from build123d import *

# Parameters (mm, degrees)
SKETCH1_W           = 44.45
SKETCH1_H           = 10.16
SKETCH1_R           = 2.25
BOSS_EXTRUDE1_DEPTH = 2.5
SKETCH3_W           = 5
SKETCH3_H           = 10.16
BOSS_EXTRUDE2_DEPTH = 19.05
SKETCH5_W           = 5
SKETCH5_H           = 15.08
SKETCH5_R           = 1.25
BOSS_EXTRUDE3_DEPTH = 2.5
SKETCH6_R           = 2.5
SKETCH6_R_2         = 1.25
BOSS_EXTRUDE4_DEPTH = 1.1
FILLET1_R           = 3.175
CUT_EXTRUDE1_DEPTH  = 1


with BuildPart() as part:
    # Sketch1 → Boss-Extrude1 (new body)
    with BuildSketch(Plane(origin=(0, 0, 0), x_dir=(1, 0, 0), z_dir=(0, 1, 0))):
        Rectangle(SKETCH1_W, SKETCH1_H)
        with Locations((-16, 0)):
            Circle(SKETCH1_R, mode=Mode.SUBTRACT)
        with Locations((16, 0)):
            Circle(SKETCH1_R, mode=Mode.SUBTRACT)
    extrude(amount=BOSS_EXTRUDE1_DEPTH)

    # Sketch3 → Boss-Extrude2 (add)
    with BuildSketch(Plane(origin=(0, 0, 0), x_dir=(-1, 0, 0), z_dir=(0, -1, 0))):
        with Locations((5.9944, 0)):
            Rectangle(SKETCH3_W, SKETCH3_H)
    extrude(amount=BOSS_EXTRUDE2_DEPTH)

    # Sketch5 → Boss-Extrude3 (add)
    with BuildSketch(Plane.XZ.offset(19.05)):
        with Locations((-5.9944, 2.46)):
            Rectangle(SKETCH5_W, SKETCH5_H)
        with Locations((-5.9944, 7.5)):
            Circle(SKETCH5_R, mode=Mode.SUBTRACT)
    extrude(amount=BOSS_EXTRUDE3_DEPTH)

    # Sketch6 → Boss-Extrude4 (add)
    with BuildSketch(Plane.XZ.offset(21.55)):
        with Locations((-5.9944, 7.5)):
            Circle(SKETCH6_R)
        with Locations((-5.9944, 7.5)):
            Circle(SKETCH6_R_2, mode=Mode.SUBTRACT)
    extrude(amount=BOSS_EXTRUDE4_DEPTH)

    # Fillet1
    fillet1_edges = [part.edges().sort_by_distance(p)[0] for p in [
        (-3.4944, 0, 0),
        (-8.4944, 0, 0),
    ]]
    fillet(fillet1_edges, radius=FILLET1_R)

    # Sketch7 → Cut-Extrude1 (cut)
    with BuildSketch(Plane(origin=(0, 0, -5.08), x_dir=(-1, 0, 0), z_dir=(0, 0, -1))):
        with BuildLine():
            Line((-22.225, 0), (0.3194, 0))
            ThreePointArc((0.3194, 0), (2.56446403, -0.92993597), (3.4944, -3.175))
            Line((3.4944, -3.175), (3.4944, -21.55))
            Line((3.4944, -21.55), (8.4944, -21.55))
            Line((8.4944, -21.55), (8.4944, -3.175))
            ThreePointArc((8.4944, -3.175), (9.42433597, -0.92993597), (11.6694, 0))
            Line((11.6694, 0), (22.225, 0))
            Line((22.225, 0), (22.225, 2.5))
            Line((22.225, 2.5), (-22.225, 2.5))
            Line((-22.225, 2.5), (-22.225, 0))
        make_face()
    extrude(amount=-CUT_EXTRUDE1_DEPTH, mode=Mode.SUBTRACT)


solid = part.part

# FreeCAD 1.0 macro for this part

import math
import FreeCAD as App
import Part
import Sketcher
Q = App.Units.Quantity


def edges_at(feature, points):
    """Names of the edges that pass closest to the given points."""
    edges = feature.Shape.Edges
    near = lambda p: min(range(len(edges)), key=lambda i: edges[i].distToShape(Part.Vertex(*p))[0])
    return sorted({f"Edge{near(p) + 1}" for p in points})

doc = App.newDocument("Part")
body = doc.addObject("PartDesign::Body", "Body")

# Sketch on XZ plane
sketch1 = body.newObject("Sketcher::SketchObject", "Sketch")
sketch1.AttachmentSupport = (doc.getObject("XZ_Plane"), [""])
sketch1.MapMode = "FlatFace"
sketch1.addGeometry([
    Part.LineSegment(App.Vector(-22.2, -5.1, 0), App.Vector(-22.2, 5.1, 0)),  # 0
    Part.LineSegment(App.Vector(-22.2, 5.1, 0), App.Vector(22.2, 5.1, 0)),  # 1
    Part.LineSegment(App.Vector(22.2, 5.1, 0), App.Vector(22.2, -5.1, 0)),  # 2
    Part.LineSegment(App.Vector(22.2, -5.1, 0), App.Vector(-22.2, -5.1, 0)),  # 3
    Part.Circle(App.Vector(-16, 0, 0), App.Vector(0, 0, 1), 2.2),  # 4
    Part.Circle(App.Vector(16, 0, 0), App.Vector(0, 0, 1), 2.2),  # 5
], False)
sketch1.addConstraint([
    Sketcher.Constraint("Coincident", 0, 2, 1, 1),
    Sketcher.Constraint("Coincident", 1, 2, 2, 1),
    Sketcher.Constraint("Coincident", 2, 2, 3, 1),
    Sketcher.Constraint("Coincident", 3, 2, 0, 1),
    Sketcher.Constraint("Vertical", 0),
    Sketcher.Constraint("Horizontal", 1),
    Sketcher.Constraint("Vertical", 2),
    Sketcher.Constraint("Horizontal", 3),
    Sketcher.Constraint("Equal", 4, 5),
    Sketcher.Constraint("Symmetric", 4, 3, 5, 3, -1, 1),
    Sketcher.Constraint("Symmetric", 0, 2, 2, 2, -1, 1),
    Sketcher.Constraint("PointOnObject", 4, 3, -1),
    Sketcher.Constraint("Diameter", 4, Q("4.5 mm")),
    Sketcher.Constraint("DistanceX", 4, 3, -1, 1, Q("16 mm")),
    Sketcher.Constraint("DistanceX", 1, 1, 1, 2, Q("44.45 mm")),
    Sketcher.Constraint("DistanceY", 0, 1, 0, 2, Q("10.16 mm")),
])
pad1 = body.newObject("PartDesign::Pad", "Pad")
pad1.Profile = sketch1
pad1.Length = 2.5
pad1.Reversed = True

# Sketch on XZ plane
sketch2 = body.newObject("Sketcher::SketchObject", "Sketch001")
sketch2.AttachmentSupport = (doc.getObject("XZ_Plane"), [""])
sketch2.MapMode = "FlatFace"
sketch2.addGeometry([
    Part.LineSegment(App.Vector(-3, -5, 0), App.Vector(-3, 5, 0)),
    Part.LineSegment(App.Vector(-3, 5, 0), App.Vector(-8, 5, 0)),
    Part.LineSegment(App.Vector(-8, 5, 0), App.Vector(-8, -5, 0)),
    Part.LineSegment(App.Vector(-8, -5, 0), App.Vector(-3, -5, 0)),
], False)
sketch2.addConstraint([
    Sketcher.Constraint("Coincident", 0, 2, 1, 1),
    Sketcher.Constraint("Coincident", 1, 2, 2, 1),
    Sketcher.Constraint("Coincident", 2, 2, 3, 1),
    Sketcher.Constraint("Coincident", 3, 2, 0, 1),
    Sketcher.Constraint("Vertical", 0),
    Sketcher.Constraint("Horizontal", 1),
    Sketcher.Constraint("Vertical", 2),
    Sketcher.Constraint("Horizontal", 3),
    Sketcher.Constraint("DistanceX", 1, 2, 1, 1, Q("5 mm")),
    Sketcher.Constraint("DistanceY", 0, 1, 0, 2, Q("10.16 mm")),
    Sketcher.Constraint("DistanceY", -1, 1, 0, 2, Q("5.08 mm")),
    Sketcher.Constraint("DistanceX", 0, 2, -1, 1, Q("3.4944 mm")),
])
pad2 = body.newObject("PartDesign::Pad", "Pad001")
pad2.Profile = sketch2
pad2.Length = 19.05

# Sketch on XZ plane
sketch3 = body.newObject("Sketcher::SketchObject", "Sketch002")
sketch3.AttachmentSupport = (doc.getObject("XZ_Plane"), [""])
sketch3.MapMode = "FlatFace"
sketch3.AttachmentOffset = App.Placement(App.Vector(0, 0, 19.05), App.Rotation())
sketch3.addGeometry([
    Part.LineSegment(App.Vector(-8.5, 10, 0), App.Vector(-8.5, -5.1, 0)),  # 0
    Part.LineSegment(App.Vector(-8.5, -5.1, 0), App.Vector(-3.5, -5.1, 0)),  # 1
    Part.LineSegment(App.Vector(-3.5, -5.1, 0), App.Vector(-3.5, 10, 0)),  # 2
    Part.LineSegment(App.Vector(-3.5, 10, 0), App.Vector(-8.5, 10, 0)),  # 3
    Part.Circle(App.Vector(-6, 7.5, 0), App.Vector(0, 0, 1), 1.2),  # 4
], False)
sketch3.addConstraint([
    Sketcher.Constraint("Coincident", 0, 2, 1, 1),
    Sketcher.Constraint("Coincident", 1, 2, 2, 1),
    Sketcher.Constraint("Coincident", 2, 2, 3, 1),
    Sketcher.Constraint("Coincident", 3, 2, 0, 1),
    Sketcher.Constraint("Vertical", 0),
    Sketcher.Constraint("Horizontal", 1),
    Sketcher.Constraint("Vertical", 2),
    Sketcher.Constraint("Horizontal", 3),
    Sketcher.Constraint("Diameter", 4, Q("2.5 mm")),
    Sketcher.Constraint("DistanceX", 1, 1, 1, 2, Q("5 mm")),
    Sketcher.Constraint("DistanceY", -1, 1, 2, 2, Q("10 mm")),
    Sketcher.Constraint("DistanceY", 0, 2, 0, 1, Q("15.08 mm")),
    Sketcher.Constraint("DistanceY", -1, 1, 4, 3, Q("7.5 mm")),
    Sketcher.Constraint("DistanceX", 0, 2, 4, 3, Q("2.5 mm")),
    Sketcher.Constraint("DistanceX", 4, 3, -1, 1, Q("5.9944 mm")),
])
pad3 = body.newObject("PartDesign::Pad", "Pad002")
pad3.Profile = sketch3
pad3.Length = 2.5

# Sketch on XZ plane
sketch4 = body.newObject("Sketcher::SketchObject", "Sketch003")
sketch4.AttachmentSupport = (doc.getObject("XZ_Plane"), [""])
sketch4.MapMode = "FlatFace"
sketch4.AttachmentOffset = App.Placement(App.Vector(0, 0, 21.55), App.Rotation())
sketch4.addGeometry([
    Part.Circle(App.Vector(-6, 7.5, 0), App.Vector(0, 0, 1), 2.5),
    Part.Circle(App.Vector(-6, 7.5, 0), App.Vector(0, 0, 1), 1.2),
], False)
sketch4.addConstraint([
    Sketcher.Constraint("Coincident", 1, 3, 0, 3),
    Sketcher.Constraint("Diameter", 0, Q("5 mm")),
    Sketcher.Constraint("Diameter", 1, Q("2.5 mm")),
    Sketcher.Constraint("DistanceY", -1, 1, 0, 3, Q("7.5 mm")),
    Sketcher.Constraint("DistanceX", 0, 3, -1, 1, Q("5.9944 mm")),
])
pad4 = body.newObject("PartDesign::Pad", "Pad003")
pad4.Profile = sketch4
pad4.Length = 1.1
doc.recompute()

fillet = body.newObject("PartDesign::Fillet", "Fillet")
fillet.Base = (pad4, edges_at(pad4, [(-3.494, 0, 0), (-8.494, 0, 0)]))
fillet.Radius = 3.175

# Sketch on XY plane
sketch5 = body.newObject("Sketcher::SketchObject", "Sketch004")
sketch5.AttachmentSupport = (doc.getObject("XY_Plane"), [""])
sketch5.MapMode = "FlatFace"
sketch5.AttachmentOffset = App.Placement(App.Vector(0, 0, -5.08), App.Rotation())
sketch5.addGeometry([
    Part.LineSegment(App.Vector(22.2, 0, 0), App.Vector(-0.3, 0, 0)),  # 0
    Part.ArcOfCircle(Part.Circle(App.Vector(-0.3, -3.2, 0), App.Vector(0, 0, 1), 3.2), math.radians(90), math.radians(180)),  # 1
    Part.LineSegment(App.Vector(-3.5, -3.2, 0), App.Vector(-3.5, -21.6, 0)),  # 2
    Part.LineSegment(App.Vector(-3.5, -21.6, 0), App.Vector(-8.5, -21.6, 0)),  # 3
    Part.LineSegment(App.Vector(-8.5, -21.6, 0), App.Vector(-8.5, -3.2, 0)),  # 4
    Part.ArcOfCircle(Part.Circle(App.Vector(-11.7, -3.2, 0), App.Vector(0, 0, 1), 3.2), math.radians(0), math.radians(90)),  # 5
    Part.LineSegment(App.Vector(-11.7, 0, 0), App.Vector(-22.2, 0, 0)),  # 6
    Part.LineSegment(App.Vector(-22.2, 0, 0), App.Vector(-22.2, 2.5, 0)),  # 7
    Part.LineSegment(App.Vector(-22.2, 2.5, 0), App.Vector(22.2, 2.5, 0)),  # 8
    Part.LineSegment(App.Vector(22.2, 2.5, 0), App.Vector(22.2, 0, 0)),  # 9
], False)
sketch5.addConstraint([
    Sketcher.Constraint("Tangent", 0, 2, 1, 1),
    Sketcher.Constraint("Tangent", 1, 2, 2, 1),
    Sketcher.Constraint("Coincident", 2, 2, 3, 1),
    Sketcher.Constraint("Coincident", 3, 2, 4, 1),
    Sketcher.Constraint("Tangent", 4, 2, 5, 1),
    Sketcher.Constraint("Tangent", 5, 2, 6, 1),
    Sketcher.Constraint("Coincident", 6, 2, 7, 1),
    Sketcher.Constraint("Coincident", 7, 2, 8, 1),
    Sketcher.Constraint("Coincident", 8, 2, 9, 1),
    Sketcher.Constraint("Coincident", 9, 2, 0, 1),
    Sketcher.Constraint("Horizontal", 0),
    Sketcher.Constraint("Vertical", 2),
    Sketcher.Constraint("Horizontal", 3),
    Sketcher.Constraint("Vertical", 4),
    Sketcher.Constraint("Horizontal", 6),
    Sketcher.Constraint("Vertical", 7),
    Sketcher.Constraint("Horizontal", 8),
    Sketcher.Constraint("Vertical", 9),
    Sketcher.Constraint("Equal", 1, 5),
    Sketcher.Constraint("Symmetric", 6, 2, 9, 2, -1, 1),
    Sketcher.Constraint("PointOnObject", 0, 2, -1),
    Sketcher.Constraint("DistanceX", 3, 2, 3, 1, Q("5 mm")),
    Sketcher.Constraint("DistanceY", 7, 1, 7, 2, Q("2.5 mm")),
    Sketcher.Constraint("Radius", 1, Q("3.175 mm")),
    Sketcher.Constraint("DistanceX", 8, 1, 8, 2, Q("44.45 mm")),
    Sketcher.Constraint("DistanceY", 2, 2, 2, 1, Q("18.375 mm")),
    Sketcher.Constraint("DistanceX", 0, 2, 0, 1, Q("22.5444 mm")),
])
pocket1 = body.newObject("PartDesign::Pocket", "Pocket")
pocket1.Profile = sketch5
pocket1.Length = 1
pocket1.Reversed = True

doc.recompute()
